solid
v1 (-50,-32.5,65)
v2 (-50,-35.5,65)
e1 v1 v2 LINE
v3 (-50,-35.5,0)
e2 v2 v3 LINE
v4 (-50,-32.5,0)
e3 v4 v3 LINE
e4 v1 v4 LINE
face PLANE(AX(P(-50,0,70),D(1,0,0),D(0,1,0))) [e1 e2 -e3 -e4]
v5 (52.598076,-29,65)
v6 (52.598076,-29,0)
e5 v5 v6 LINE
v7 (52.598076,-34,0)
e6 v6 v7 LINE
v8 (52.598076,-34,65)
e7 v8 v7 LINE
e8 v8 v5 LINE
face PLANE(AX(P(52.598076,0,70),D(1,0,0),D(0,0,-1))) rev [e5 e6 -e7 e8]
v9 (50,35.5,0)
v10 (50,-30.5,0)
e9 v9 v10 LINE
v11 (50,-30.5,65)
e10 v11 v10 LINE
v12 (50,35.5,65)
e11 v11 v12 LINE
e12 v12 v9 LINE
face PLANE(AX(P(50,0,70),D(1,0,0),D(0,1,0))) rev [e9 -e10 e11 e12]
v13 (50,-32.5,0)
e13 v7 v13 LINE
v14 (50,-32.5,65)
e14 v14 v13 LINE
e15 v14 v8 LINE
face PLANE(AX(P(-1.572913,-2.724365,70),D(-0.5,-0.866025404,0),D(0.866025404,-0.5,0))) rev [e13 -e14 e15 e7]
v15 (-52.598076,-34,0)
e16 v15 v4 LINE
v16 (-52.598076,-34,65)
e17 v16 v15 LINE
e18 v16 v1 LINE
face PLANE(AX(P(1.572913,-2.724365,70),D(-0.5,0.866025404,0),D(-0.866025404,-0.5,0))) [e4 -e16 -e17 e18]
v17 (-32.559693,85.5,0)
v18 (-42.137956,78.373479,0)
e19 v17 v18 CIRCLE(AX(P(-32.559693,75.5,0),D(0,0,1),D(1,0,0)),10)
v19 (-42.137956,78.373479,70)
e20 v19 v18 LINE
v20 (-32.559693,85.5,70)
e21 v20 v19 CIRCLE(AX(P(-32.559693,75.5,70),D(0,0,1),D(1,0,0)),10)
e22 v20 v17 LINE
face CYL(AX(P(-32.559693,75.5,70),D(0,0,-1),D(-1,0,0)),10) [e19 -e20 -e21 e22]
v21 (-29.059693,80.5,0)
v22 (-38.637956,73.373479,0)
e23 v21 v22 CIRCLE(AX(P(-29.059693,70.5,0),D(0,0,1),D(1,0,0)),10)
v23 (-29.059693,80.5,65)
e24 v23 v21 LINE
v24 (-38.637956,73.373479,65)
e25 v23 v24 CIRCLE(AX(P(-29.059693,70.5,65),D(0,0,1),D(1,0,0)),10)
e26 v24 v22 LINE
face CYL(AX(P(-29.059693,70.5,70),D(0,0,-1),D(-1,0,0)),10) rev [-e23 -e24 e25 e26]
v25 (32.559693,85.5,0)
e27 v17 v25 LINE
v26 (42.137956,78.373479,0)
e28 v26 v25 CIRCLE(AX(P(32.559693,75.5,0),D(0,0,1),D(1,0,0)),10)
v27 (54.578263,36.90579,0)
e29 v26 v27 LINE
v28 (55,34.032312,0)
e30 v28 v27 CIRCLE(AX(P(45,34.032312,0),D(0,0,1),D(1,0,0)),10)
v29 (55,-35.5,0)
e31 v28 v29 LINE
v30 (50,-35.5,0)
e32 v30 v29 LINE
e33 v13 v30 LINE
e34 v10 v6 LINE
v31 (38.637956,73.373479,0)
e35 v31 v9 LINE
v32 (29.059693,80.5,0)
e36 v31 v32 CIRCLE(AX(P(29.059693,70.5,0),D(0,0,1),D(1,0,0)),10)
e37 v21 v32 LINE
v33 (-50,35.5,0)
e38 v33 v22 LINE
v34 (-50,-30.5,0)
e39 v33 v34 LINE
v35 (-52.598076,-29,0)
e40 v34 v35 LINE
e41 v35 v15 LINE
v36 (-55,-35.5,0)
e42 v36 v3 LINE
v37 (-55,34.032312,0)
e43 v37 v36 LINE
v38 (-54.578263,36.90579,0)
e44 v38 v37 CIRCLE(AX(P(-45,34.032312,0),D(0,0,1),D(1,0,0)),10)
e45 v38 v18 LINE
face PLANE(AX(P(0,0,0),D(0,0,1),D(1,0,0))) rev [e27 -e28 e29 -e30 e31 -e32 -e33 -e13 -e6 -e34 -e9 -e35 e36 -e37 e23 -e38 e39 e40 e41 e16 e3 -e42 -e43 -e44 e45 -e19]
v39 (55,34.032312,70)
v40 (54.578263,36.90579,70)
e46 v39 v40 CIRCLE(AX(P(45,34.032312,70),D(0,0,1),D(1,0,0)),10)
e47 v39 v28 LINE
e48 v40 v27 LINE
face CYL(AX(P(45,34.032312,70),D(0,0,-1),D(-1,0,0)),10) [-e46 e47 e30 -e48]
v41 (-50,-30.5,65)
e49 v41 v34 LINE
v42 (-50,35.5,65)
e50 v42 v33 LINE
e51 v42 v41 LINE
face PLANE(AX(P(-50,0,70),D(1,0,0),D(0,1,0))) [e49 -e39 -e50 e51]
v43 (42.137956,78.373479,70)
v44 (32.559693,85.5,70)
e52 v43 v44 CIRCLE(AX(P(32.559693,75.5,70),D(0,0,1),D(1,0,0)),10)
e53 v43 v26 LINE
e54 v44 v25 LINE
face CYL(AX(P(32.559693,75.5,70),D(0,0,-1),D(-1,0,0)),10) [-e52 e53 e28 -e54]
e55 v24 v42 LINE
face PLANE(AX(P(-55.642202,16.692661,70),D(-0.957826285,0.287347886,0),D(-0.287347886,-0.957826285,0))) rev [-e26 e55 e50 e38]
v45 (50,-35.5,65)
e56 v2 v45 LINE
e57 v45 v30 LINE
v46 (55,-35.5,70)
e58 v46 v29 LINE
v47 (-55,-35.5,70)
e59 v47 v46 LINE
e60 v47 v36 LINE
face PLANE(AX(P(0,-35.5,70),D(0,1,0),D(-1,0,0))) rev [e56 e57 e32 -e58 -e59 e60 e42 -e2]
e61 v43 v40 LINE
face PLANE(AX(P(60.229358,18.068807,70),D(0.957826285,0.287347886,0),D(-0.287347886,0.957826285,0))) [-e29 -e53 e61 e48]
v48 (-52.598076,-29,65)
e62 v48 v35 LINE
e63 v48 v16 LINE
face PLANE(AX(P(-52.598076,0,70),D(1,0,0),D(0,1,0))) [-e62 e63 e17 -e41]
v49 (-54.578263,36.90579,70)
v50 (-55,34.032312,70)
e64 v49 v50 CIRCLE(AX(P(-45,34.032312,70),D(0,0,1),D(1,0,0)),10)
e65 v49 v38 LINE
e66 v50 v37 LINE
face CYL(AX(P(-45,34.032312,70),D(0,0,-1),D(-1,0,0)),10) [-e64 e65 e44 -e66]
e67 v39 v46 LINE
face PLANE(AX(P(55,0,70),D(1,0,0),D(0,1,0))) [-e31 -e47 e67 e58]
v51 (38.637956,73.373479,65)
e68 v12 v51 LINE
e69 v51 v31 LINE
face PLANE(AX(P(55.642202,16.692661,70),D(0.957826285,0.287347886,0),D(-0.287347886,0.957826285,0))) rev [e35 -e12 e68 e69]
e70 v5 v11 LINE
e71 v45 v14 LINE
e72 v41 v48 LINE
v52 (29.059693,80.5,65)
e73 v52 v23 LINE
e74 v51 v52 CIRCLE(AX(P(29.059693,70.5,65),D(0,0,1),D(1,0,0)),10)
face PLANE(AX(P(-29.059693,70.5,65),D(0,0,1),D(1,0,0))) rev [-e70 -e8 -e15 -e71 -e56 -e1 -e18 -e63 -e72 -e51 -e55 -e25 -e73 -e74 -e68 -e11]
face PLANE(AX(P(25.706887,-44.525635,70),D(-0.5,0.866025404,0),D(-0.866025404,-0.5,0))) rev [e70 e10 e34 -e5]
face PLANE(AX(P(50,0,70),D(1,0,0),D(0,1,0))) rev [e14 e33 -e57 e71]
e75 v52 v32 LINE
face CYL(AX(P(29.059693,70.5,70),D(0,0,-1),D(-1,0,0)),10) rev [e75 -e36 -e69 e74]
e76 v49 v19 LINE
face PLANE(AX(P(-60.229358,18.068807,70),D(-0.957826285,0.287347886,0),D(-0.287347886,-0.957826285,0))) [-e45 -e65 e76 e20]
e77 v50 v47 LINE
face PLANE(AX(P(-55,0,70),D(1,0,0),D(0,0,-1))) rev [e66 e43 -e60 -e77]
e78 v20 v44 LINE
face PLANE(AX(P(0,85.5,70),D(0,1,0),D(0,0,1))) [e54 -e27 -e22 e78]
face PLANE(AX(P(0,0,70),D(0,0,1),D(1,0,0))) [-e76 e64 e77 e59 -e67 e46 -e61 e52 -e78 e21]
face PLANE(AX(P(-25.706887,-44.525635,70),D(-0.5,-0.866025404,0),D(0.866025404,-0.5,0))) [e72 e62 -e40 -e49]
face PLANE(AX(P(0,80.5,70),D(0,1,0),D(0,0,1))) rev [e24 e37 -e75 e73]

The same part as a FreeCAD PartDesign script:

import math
import FreeCAD as App
import Part
import Sketcher
Q = App.Units.Quantity

doc = App.newDocument("Part")
body = doc.addObject("PartDesign::Body", "Body")

sketch1 = body.newObject("Sketcher::SketchObject", "Sketch")
sketch1.AttachmentSupport = (doc.getObject("XY_Plane"), [""])
sketch1.MapMode = "FlatFace"
sketch1.addGeometry([
    Part.LineSegment(App.Vector(-52.6, -29, 0), App.Vector(-50, -30.5, 0)),
    Part.LineSegment(App.Vector(-50, -30.5, 0), App.Vector(-50, 35.5, 0)),
    Part.LineSegment(App.Vector(-50, 35.5, 0), App.Vector(-38.6, 73.4, 0)),
    Part.ArcOfCircle(Part.Circle(App.Vector(-29.1, 70.5, 0), App.Vector(0, 0, 1), 10), math.radians(90), math.radians(163)),
    Part.LineSegment(App.Vector(-29.1, 80.5, 0), App.Vector(29.1, 80.5, 0)),
    Part.ArcOfCircle(Part.Circle(App.Vector(29.1, 70.5, 0), App.Vector(0, 0, 1), 10), math.radians(17), math.radians(90)),
    Part.LineSegment(App.Vector(38.6, 73.4, 0), App.Vector(50, 35.5, 0)),
    Part.LineSegment(App.Vector(50, 35.5, 0), App.Vector(50, -30.5, 0)),
    Part.LineSegment(App.Vector(50, -30.5, 0), App.Vector(52.6, -29, 0)),
    Part.LineSegment(App.Vector(52.6, -29, 0), App.Vector(52.6, -34, 0)),
    Part.LineSegment(App.Vector(52.6, -34, 0), App.Vector(50, -32.5, 0)),
    Part.LineSegment(App.Vector(50, -32.5, 0), App.Vector(50, -35.5, 0)),
    Part.LineSegment(App.Vector(50, -35.5, 0), App.Vector(55, -35.5, 0)),
    Part.LineSegment(App.Vector(55, -35.5, 0), App.Vector(55, 34, 0)),
    Part.ArcOfCircle(Part.Circle(App.Vector(45, 34, 0), App.Vector(0, 0, 1), 10), math.radians(0), math.radians(16.7)),
    Part.LineSegment(App.Vector(54.6, 36.9, 0), App.Vector(42.1, 78.4, 0)),
    Part.ArcOfCircle(Part.Circle(App.Vector(32.6, 75.5, 0), App.Vector(0, 0, 1), 10), math.radians(17), math.radians(90)),
    Part.LineSegment(App.Vector(32.6, 85.5, 0), App.Vector(-32.6, 85.5, 0)),
    Part.ArcOfCircle(Part.Circle(App.Vector(-32.6, 75.5, 0), App.Vector(0, 0, 1), 10), math.radians(90), math.radians(163)),
    Part.LineSegment(App.Vector(-42.1, 78.4, 0), App.Vector(-54.6, 36.9, 0)),
    Part.ArcOfCircle(Part.Circle(App.Vector(-45, 34, 0), App.Vector(0, 0, 1), 10), math.radians(163.3), math.radians(180)),
    Part.LineSegment(App.Vector(-55, 34, 0), App.Vector(-55, -35.5, 0)),
    Part.LineSegment(App.Vector(-55, -35.5, 0), App.Vector(-50, -35.5, 0)),
    Part.LineSegment(App.Vector(-50, -35.5, 0), App.Vector(-50, -32.5, 0)),
    Part.LineSegment(App.Vector(-50, -32.5, 0), App.Vector(-52.6, -34, 0)),
    Part.LineSegment(App.Vector(-52.6, -34, 0), App.Vector(-52.6, -29, 0)),
], False)
sketch1.addConstraint([
    Sketcher.Constraint("Coincident", 0, 2, 1, 1),
    Sketcher.Constraint("Coincident", 1, 2, 2, 1),
    Sketcher.Constraint("Tangent", 2, 2, 3, 2),
    Sketcher.Constraint("Tangent", 3, 1, 4, 1),
    Sketcher.Constraint("Tangent", 4, 2, 5, 2),
    Sketcher.Constraint("Tangent", 5, 1, 6, 1),
    Sketcher.Constraint("Coincident", 6, 2, 7, 1),
    Sketcher.Constraint("Coincident", 7, 2, 8, 1),
    Sketcher.Constraint("Coincident", 8, 2, 9, 1),
    Sketcher.Constraint("Coincident", 9, 2, 10, 1),
    Sketcher.Constraint("Coincident", 10, 2, 11, 1),
    Sketcher.Constraint("Coincident", 11, 2, 12, 1),
    Sketcher.Constraint("Coincident", 12, 2, 13, 1),
    Sketcher.Constraint("Tangent", 13, 2, 14, 1),
    Sketcher.Constraint("Tangent", 14, 2, 15, 1),
    Sketcher.Constraint("Tangent", 15, 2, 16, 1),
    Sketcher.Constraint("Tangent", 16, 2, 17, 1),
    Sketcher.Constraint("Tangent", 17, 2, 18, 1),
    Sketcher.Constraint("Tangent", 18, 2, 19, 1),
    Sketcher.Constraint("Tangent", 19, 2, 20, 1),
    Sketcher.Constraint("Tangent", 20, 2, 21, 1),
    Sketcher.Constraint("Coincident", 21, 2, 22, 1),
    Sketcher.Constraint("Coincident", 22, 2, 23, 1),
    Sketcher.Constraint("Coincident", 23, 2, 24, 1),
    Sketcher.Constraint("Coincident", 24, 2, 25, 1),
    Sketcher.Constraint("Coincident", 25, 2, 0, 1),
    Sketcher.Constraint("Vertical", 1),
    Sketcher.Constraint("Horizontal", 4),
    Sketcher.Constraint("Vertical", 7),
    Sketcher.Constraint("Vertical", 9),
    Sketcher.Constraint("Vertical", 11),
    Sketcher.Constraint("Horizontal", 12),
    Sketcher.Constraint("Vertical", 13),
    Sketcher.Constraint("Horizontal", 17),
    Sketcher.Constraint("Vertical", 21),
    Sketcher.Constraint("Horizontal", 22),
    Sketcher.Constraint("Vertical", 23),
    Sketcher.Constraint("Vertical", 25),
    Sketcher.Constraint("Equal", 3, 5),
    Sketcher.Constraint("Equal", 5, 14),
    Sketcher.Constraint("Equal", 14, 16),
    Sketcher.Constraint("Equal", 16, 18),
    Sketcher.Constraint("Equal", 18, 20),
    Sketcher.Constraint("Symmetric", 1, 2, 11, 2, -1, 1),
    Sketcher.Constraint("Symmetric", 6, 2, 22, 2, -1, 1),
    Sketcher.Constraint("Symmetric", 14, 3, 20, 3, -2),
    Sketcher.Constraint("Symmetric", 2, 2, 5, 1, -2),
    Sketcher.Constraint("Symmetric", 0, 2, 7, 2, -2),
    Sketcher.Constraint("Symmetric", 9, 2, 24, 2, -2),
    Sketcher.Constraint("Parallel", 0, 10),
    Sketcher.Constraint("Parallel", 6, 15),
    Sketcher.Constraint("Parallel", 2, 19),
    Sketcher.Constraint("Parallel", 8, 24),
    Sketcher.Constraint("Horizontal", 10, 2, 23, 2),
    Sketcher.Constraint("Equal", 22, 9),
    Sketcher.Constraint("Radius", 3, Q("10 mm")),
    Sketcher.Constraint("DistanceX", 12, 1, 12, 2, Q("5 mm")),
    Sketcher.Constraint("DistanceY", 1, 1, 1, 2, Q("66 mm")),
    Sketcher.Constraint("DistanceY", 11, 2, 11, 1, Q("3 mm")),
    Sketcher.Constraint("Angle", 0, Q("-30 deg")),
    Sketcher.Constraint("Distance", 0, Q("3 mm")),
    Sketcher.Constraint("DistanceX", -1, 1, 14, 3, Q("45 mm")),
    Sketcher.Constraint("DistanceY", 5, 3, 16, 3, Q("5 mm")),
    Sketcher.Constraint("DistanceY", 0, 2, 3, 3, Q("101 mm")),
    Sketcher.Constraint("DistanceX", 5, 3, 16, 3, Q("3.5 mm")),
    Sketcher.Constraint("DistanceY", 13, 1, 13, 2, Q("69.532312 mm")),
])
pad1 = body.newObject("PartDesign::Pad", "Pad")
pad1.Profile = sketch1
pad1.Length = 70

sketch2 = body.newObject("Sketcher::SketchObject", "Sketch001")
sketch2.AttachmentSupport = (doc.getObject("XY_Plane"), [""])
sketch2.MapMode = "FlatFace"
sketch2.AttachmentOffset = App.Placement(App.Vector(0, 0, 65), App.Rotation())
sketch2.addGeometry([
    Part.LineSegment(App.Vector(-50, -35.5, 0), App.Vector(50, -35.5, 0)),
    Part.LineSegment(App.Vector(50, -35.5, 0), App.Vector(50, -32.5, 0)),
    Part.LineSegment(App.Vector(50, -32.5, 0), App.Vector(52.6, -34, 0)),
    Part.LineSegment(App.Vector(52.6, -34, 0), App.Vector(52.6, -29, 0)),
    Part.LineSegment(App.Vector(52.6, -29, 0), App.Vector(50, -30.5, 0)),
    Part.LineSegment(App.Vector(50, -30.5, 0), App.Vector(50, 35.5, 0)),
    Part.LineSegment(App.Vector(50, 35.5, 0), App.Vector(38.6, 73.4, 0)),
    Part.ArcOfCircle(Part.Circle(App.Vector(29.1, 70.5, 0), App.Vector(0, 0, 1), 10), math.radians(17), math.radians(90)),
    Part.LineSegment(App.Vector(29.1, 80.5, 0), App.Vector(-29.1, 80.5, 0)),
    Part.ArcOfCircle(Part.Circle(App.Vector(-29.1, 70.5, 0), App.Vector(0, 0, 1), 10), math.radians(90), math.radians(163)),
    Part.LineSegment(App.Vector(-38.6, 73.4, 0), App.Vector(-50, 35.5, 0)),
    Part.LineSegment(App.Vector(-50, 35.5, 0), App.Vector(-50, -30.5, 0)),
    Part.LineSegment(App.Vector(-50, -30.5, 0), App.Vector(-52.6, -29, 0)),
    Part.LineSegment(App.Vector(-52.6, -29, 0), App.Vector(-52.6, -34, 0)),
    Part.LineSegment(App.Vector(-52.6, -34, 0), App.Vector(-50, -32.5, 0)),
    Part.LineSegment(App.Vector(-50, -32.5, 0), App.Vector(-50, -35.5, 0)),
], False)
sketch2.addConstraint([
    Sketcher.Constraint("Coincident", 0, 2, 1, 1),
    Sketcher.Constraint("Coincident", 1, 2, 2, 1),
    Sketcher.Constraint("Coincident", 2, 2, 3, 1),
    Sketcher.Constraint("Coincident", 3, 2, 4, 1),
    Sketcher.Constraint("Coincident", 4, 2, 5, 1),
    Sketcher.Constraint("Coincident", 5, 2, 6, 1),
    Sketcher.Constraint("Tangent", 6, 2, 7, 1),
    Sketcher.Constraint("Tangent", 7, 2, 8, 1),
    Sketcher.Constraint("Tangent", 8, 2, 9, 1),
    Sketcher.Constraint("Tangent", 9, 2, 10, 1),
    Sketcher.Constraint("Coincident", 10, 2, 11, 1),
    Sketcher.Constraint("Coincident", 11, 2, 12, 1),
    Sketcher.Constraint("Coincident", 12, 2, 13, 1),
    Sketcher.Constraint("Coincident", 13, 2, 14, 1),
    Sketcher.Constraint("Coincident", 14, 2, 15, 1),
    Sketcher.Constraint("Coincident", 15, 2, 0, 1),
    Sketcher.Constraint("Horizontal", 0),
    Sketcher.Constraint("Vertical", 1),
    Sketcher.Constraint("Vertical", 3),
    Sketcher.Constraint("Vertical", 5),
    Sketcher.Constraint("Horizontal", 8),
    Sketcher.Constraint("Vertical", 11),
    Sketcher.Constraint("Vertical", 13),
    Sketcher.Constraint("Vertical", 15),
    Sketcher.Constraint("Equal", 7, 9),
    Sketcher.Constraint("Symmetric", 0, 2, 10, 2, -1, 1),
    Sketcher.Constraint("Symmetric", 5, 2, 15, 2, -1, 1),
    Sketcher.Constraint("Symmetric", 6, 2, 9, 2, -2),
    Sketcher.Constraint("Symmetric", 3, 2, 12, 2, -2),
    Sketcher.Constraint("Parallel", 2, 12),
    Sketcher.Constraint("Parallel", 4, 14),
    Sketcher.Constraint("Horizontal", 4, 2, 11, 2),
    Sketcher.Constraint("Horizontal", 2, 2, 13, 2),
    Sketcher.Constraint("Radius", 7, Q("10 mm")),
    Sketcher.Constraint("DistanceX", 0, 1, 0, 2, Q("100 mm")),
    Sketcher.Constraint("DistanceY", 1, 1, 1, 2, Q("3 mm")),
    Sketcher.Constraint("DistanceY", 3, 1, 3, 2, Q("5 mm")),
    Sketcher.Constraint("DistanceY", 5, 1, 5, 2, Q("66 mm")),
    Sketcher.Constraint("Angle", 2, Q("-30 deg")),
    Sketcher.Constraint("Distance", 2, Q("3 mm")),
    Sketcher.Constraint("DistanceY", 0, 2, 7, 3, Q("106 mm")),
    Sketcher.Constraint("DistanceX", 8, 2, 8, 1, Q("58.119387 mm")),
])
pad2 = body.newObject("PartDesign::Pad", "Pad001")
pad2.Profile = sketch2
pad2.Length = 5

doc.recompute()
